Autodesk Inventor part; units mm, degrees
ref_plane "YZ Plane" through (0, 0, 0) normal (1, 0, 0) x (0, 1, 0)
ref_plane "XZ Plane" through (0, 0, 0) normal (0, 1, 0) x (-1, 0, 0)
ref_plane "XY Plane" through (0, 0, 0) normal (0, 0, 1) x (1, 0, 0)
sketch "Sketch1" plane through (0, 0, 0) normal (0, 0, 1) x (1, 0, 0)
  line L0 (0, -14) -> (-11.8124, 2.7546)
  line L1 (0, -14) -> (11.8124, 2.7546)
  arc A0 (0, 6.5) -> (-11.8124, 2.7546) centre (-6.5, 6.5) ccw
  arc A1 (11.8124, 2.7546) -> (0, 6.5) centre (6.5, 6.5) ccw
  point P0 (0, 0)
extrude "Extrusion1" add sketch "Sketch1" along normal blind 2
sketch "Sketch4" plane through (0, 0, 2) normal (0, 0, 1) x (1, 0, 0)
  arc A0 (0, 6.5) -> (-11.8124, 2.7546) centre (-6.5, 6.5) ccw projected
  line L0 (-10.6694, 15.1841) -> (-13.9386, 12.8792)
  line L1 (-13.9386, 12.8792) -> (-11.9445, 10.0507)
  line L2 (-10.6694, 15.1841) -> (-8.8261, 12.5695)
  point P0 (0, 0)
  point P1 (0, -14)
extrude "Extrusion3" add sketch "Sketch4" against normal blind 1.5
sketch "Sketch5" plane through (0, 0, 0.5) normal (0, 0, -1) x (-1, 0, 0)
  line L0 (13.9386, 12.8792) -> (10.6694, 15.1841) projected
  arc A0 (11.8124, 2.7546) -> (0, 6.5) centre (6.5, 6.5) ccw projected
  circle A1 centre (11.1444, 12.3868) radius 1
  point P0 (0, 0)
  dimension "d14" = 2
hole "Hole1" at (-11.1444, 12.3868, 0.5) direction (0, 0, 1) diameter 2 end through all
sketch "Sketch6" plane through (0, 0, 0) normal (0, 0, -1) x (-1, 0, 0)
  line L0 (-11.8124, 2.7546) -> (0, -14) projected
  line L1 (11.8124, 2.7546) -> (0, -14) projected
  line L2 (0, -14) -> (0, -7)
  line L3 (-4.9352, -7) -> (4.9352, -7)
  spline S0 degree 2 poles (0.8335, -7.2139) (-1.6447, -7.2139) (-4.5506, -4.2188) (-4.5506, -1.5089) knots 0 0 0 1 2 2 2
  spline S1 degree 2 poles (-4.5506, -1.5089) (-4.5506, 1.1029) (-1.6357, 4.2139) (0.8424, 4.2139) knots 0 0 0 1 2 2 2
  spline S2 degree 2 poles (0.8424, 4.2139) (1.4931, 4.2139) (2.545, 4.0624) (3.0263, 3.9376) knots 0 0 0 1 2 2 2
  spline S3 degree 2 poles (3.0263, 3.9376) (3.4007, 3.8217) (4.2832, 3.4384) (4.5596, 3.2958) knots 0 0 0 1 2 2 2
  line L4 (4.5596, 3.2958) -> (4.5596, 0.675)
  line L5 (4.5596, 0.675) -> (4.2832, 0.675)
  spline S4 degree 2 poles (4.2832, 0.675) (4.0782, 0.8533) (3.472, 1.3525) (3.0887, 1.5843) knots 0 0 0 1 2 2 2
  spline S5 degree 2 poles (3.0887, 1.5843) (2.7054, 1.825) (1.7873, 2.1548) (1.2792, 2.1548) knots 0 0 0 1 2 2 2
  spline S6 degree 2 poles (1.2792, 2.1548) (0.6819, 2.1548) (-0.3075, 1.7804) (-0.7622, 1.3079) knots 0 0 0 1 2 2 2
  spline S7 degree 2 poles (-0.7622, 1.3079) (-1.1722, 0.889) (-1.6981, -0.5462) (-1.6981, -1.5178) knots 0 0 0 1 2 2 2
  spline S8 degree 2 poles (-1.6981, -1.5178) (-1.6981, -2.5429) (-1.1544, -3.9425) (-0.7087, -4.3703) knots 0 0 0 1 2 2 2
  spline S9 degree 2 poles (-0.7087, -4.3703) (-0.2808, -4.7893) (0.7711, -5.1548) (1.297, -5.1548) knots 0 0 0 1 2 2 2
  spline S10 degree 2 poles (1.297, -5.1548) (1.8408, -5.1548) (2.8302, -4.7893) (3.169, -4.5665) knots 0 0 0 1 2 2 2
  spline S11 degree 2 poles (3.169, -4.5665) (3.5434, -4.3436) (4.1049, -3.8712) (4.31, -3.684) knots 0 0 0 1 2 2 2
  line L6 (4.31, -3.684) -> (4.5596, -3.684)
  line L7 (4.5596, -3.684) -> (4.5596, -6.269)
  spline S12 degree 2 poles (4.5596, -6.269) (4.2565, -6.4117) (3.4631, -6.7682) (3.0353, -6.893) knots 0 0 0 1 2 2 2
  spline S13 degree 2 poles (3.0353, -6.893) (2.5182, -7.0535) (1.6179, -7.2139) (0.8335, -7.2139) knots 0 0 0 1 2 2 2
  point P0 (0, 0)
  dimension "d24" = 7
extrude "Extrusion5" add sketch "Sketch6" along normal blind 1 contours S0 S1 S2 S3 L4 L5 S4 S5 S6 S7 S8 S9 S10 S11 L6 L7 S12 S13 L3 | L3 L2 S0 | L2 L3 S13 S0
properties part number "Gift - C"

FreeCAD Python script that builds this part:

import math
import FreeCAD as App
import Part
import Sketcher
from FreeCAD import Vector

doc = App.newDocument("Part")
body = doc.addObject("PartDesign::Body", "Body")

# Sketch on XY plane
sketch1 = doc.addObject("Sketcher::SketchObject", "Sketch")
body.addObject(sketch1)
sketch1.AttachmentSupport = (doc.XY_Plane, [""])
sketch1.MapMode = "FlatFace"
sketch1.addGeometry(Part.LineSegment(Vector(-12, 3, 0), Vector(0, -14, 0)), False)
sketch1.addGeometry(Part.LineSegment(Vector(0, -14, 0), Vector(12, 3, 0)), False)
sketch1.addGeometry(Part.ArcOfCircle(Part.Circle(Vector(6, 6, 0), Vector(0, 0, 1), 6), math.radians(-35), math.radians(180)), False)
sketch1.addGeometry(Part.ArcOfCircle(Part.Circle(Vector(-6, 6, 0), Vector(0, 0, 1), 6), math.radians(0), math.radians(215)), False)
sketch1.addConstraint(Sketcher.Constraint("Coincident", 0, 2, 1, 1))
sketch1.addConstraint(Sketcher.Constraint("Tangent", 1, 2, 2, 1))
sketch1.addConstraint(Sketcher.Constraint("Tangent", 2, 2, 3, 1))
sketch1.addConstraint(Sketcher.Constraint("Tangent", 3, 2, 0, 1))
sketch1.addConstraint(Sketcher.Constraint("Equal", 2, 3))
sketch1.addConstraint(Sketcher.Constraint("Symmetric", 2, 3, 3, 3, -2))
sketch1.addConstraint(Sketcher.Constraint("PointOnObject", 0, 2, -2))
sketch1.addConstraint(Sketcher.Constraint("Radius", 2, 6.5))
sketch1.addConstraint(Sketcher.Constraint("DistanceY", 0, 2, -1, 1, 14.0))
sketch1.addConstraint(Sketcher.Constraint("Distance", 0, 20.5))
pad1 = doc.addObject("PartDesign::Pad", "Pad")
body.addObject(pad1)
pad1.Profile = sketch1
pad1.Length = 2

# Sketch on XY plane
sketch2 = doc.addObject("Sketcher::SketchObject", "Sketch001")
body.addObject(sketch2)
sketch2.AttachmentSupport = (doc.XY_Plane, [""])
sketch2.MapMode = "FlatFace"
sketch2.AttachmentOffset = App.Placement(Vector(0, 0, 2), App.Rotation())
sketch2.addGeometry(Part.ArcOfCircle(Part.Circle(Vector(-6.5, 6.5, 0), Vector(0, 0, 1), 6.5), math.radians(111), math.radians(147)), False)
sketch2.addGeometry(Part.LineSegment(Vector(-8.8, 12.6, 0), Vector(-10.7, 15.2, 0)), False)
sketch2.addGeometry(Part.LineSegment(Vector(-10.7, 15.2, 0), Vector(-13.9, 12.9, 0)), False)
sketch2.addGeometry(Part.LineSegment(Vector(-13.9, 12.9, 0), Vector(-11.9, 10.1, 0)), False)
sketch2.addConstraint(Sketcher.Constraint("Coincident", 0, 1, 1, 1))
sketch2.addConstraint(Sketcher.Constraint("Coincident", 1, 2, 2, 1))
sketch2.addConstraint(Sketcher.Constraint("Coincident", 2, 2, 3, 1))
sketch2.addConstraint(Sketcher.Constraint("Coincident", 3, 2, 0, 2))
sketch2.addConstraint(Sketcher.Constraint("Perpendicular", 1, 2))
sketch2.addConstraint(Sketcher.Constraint("Perpendicular", 2, 3))
sketch2.addConstraint(Sketcher.Constraint("Radius", 0, 6.5))
sketch2.addConstraint(Sketcher.Constraint("Distance", 2, 4.0))
sketch2.addConstraint(Sketcher.Constraint("DistanceX", 0, 3, -1, 1, 6.5))
sketch2.addConstraint(Sketcher.Constraint("DistanceY", -1, 1, 0, 3, 6.5))
sketch2.addConstraint(Sketcher.Constraint("Distance", 1, 3.199))
sketch2.addConstraint(Sketcher.Constraint("DistanceX", 0, 1, -1, 1, 8.826))
sketch2.addConstraint(Sketcher.Constraint("DistanceY", -1, 1, 1, 2, 15.184))
pad2 = doc.addObject("PartDesign::Pad", "Pad001")
body.addObject(pad2)
pad2.Profile = sketch2
pad2.Length = 1.5
pad2.Reversed = True

# Sketch on XY plane
sketch3 = doc.addObject("Sketcher::SketchObject", "Sketch002")
body.addObject(sketch3)
sketch3.AttachmentSupport = (doc.XY_Plane, [""])
sketch3.MapMode = "FlatFace"
sketch3.AttachmentOffset = App.Placement(Vector(0, 0, 0.5), App.Rotation())
sketch3.addGeometry(Part.Circle(Vector(-11.1, 12.4, 0), Vector(0, 0, 1), 1), False)
sketch3.addConstraint(Sketcher.Constraint("Diameter", 0, 2.0))
sketch3.addConstraint(Sketcher.Constraint("DistanceX", 0, 3, -1, 1, 11.1444))
sketch3.addConstraint(Sketcher.Constraint("DistanceY", -1, 1, 0, 3, 12.3868))
doc.recompute()
hole = doc.addObject("PartDesign::Hole", "Hole")
body.addObject(hole)
hole.Profile = sketch3
hole.ThreadType = "None"
hole.Diameter = 2
hole.DepthType = "ThroughAll"
hole.Reversed = True

# Sketch on XY plane
sketch4 = doc.addObject("Sketcher::SketchObject", "Sketch003")
body.addObject(sketch4)
sketch4.AttachmentSupport = (doc.XY_Plane, [""])
sketch4.MapMode = "FlatFace"
sketch4.addGeometry(Part.BSplineCurve([Vector(0.893247, -7, 0), Vector(2.193818, -6.647927, 0), Vector(4.5506, -4.2188, 0), Vector(4.5506, -1.5089, 0)], [3, 1, 3], [0.377932923, 1, 2], False, 2, [1, 1, 1, 1], False), False)
sketch4.addGeometry(Part.BSplineCurve([Vector(0, -7.168319, 0), Vector(0.467846, -7.115159, 0), Vector(0.893247, -7, 0)], [3, 3], [0.174462449, 0.377932923], False, 2, [1, 1, 1], False), False)
sketch4.addGeometry(Part.BSplineCurve([Vector(-0.8335, -7.2139, 0), Vector(-0.401147, -7.2139, 0), Vector(0, -7.168319, 0)], [3, 3], [0, 0.174462449], False, 2, [1, 1, 1], False), False)
sketch4.addGeometry(Part.BSplineCurve([Vector(-2.664734, -7, 0), Vector(-2.35298, -7.082936, 0), Vector(-1.6179, -7.2139, 0), Vector(-0.8335, -7.2139, 0)], [3, 1, 3], [0.367032538, 1, 2], False, 2, [1, 1, 1, 1], False), False)
sketch4.addGeometry(Part.BSplineCurve([Vector(-3.0353, -6.893, 0), Vector(-2.845507, -6.951909, 0), Vector(-2.664734, -7, 0)], [3, 3], [0, 0.367032538], False, 2, [1, 1, 1], False), False)
sketch4.addGeometry(Part.BSplineCurve([Vector(-4.5596, -6.269, 0), Vector(-4.2565, -6.4117, 0), Vector(-3.4631, -6.7682, 0), Vector(-3.0353, -6.893, 0)], [3, 1, 3], [0, 1, 2], False, 2, [1, 1, 1, 1], False), False)
sketch4.addGeometry(Part.LineSegment(Vector(-4.5596, -6.269, 0), Vector(-4.5596, -3.684, 0)), False)
sketch4.addGeometry(Part.LineSegment(Vector(-4.5596, -3.684, 0), Vector(-4.31, -3.684, 0)), False)
sketch4.addGeometry(Part.BSplineCurve([Vector(-3.169, -4.5665, 0), Vector(-3.5434, -4.3436, 0), Vector(-4.1049, -3.8712, 0), Vector(-4.31, -3.684, 0)], [3, 1, 3], [0, 1, 2], False, 2, [1, 1, 1, 1], False), False)
sketch4.addGeometry(Part.BSplineCurve([Vector(-1.297, -5.1548, 0), Vector(-1.8408, -5.1548, 0), Vector(-2.8302, -4.7893, 0), Vector(-3.169, -4.5665, 0)], [3, 1, 3], [0, 1, 2], False, 2, [1, 1, 1, 1], False), False)
sketch4.addGeometry(Part.BSplineCurve([Vector(0.7087, -4.3703, 0), Vector(0.2808, -4.7893, 0), Vector(-0.7711, -5.1548, 0), Vector(-1.297, -5.1548, 0)], [3, 1, 3], [0, 1, 2], False, 2, [1, 1, 1, 1], False), False)
sketch4.addGeometry(Part.BSplineCurve([Vector(1.6981, -1.5178, 0), Vector(1.6981, -2.5429, 0), Vector(1.1544, -3.9425, 0), Vector(0.7087, -4.3703, 0)], [3, 1, 3], [0, 1, 2], False, 2, [1, 1, 1, 1], False), False)
sketch4.addGeometry(Part.BSplineCurve([Vector(0.7622, 1.3079, 0), Vector(1.1722, 0.889, 0), Vector(1.6981, -0.5462, 0), Vector(1.6981, -1.5178, 0)], [3, 1, 3], [0, 1, 2], False, 2, [1, 1, 1, 1], False), False)
sketch4.addGeometry(Part.BSplineCurve([Vector(-1.2792, 2.1548, 0), Vector(-0.6819, 2.1548, 0), Vector(0.3075, 1.7804, 0), Vector(0.7622, 1.3079, 0)], [3, 1, 3], [0, 1, 2], False, 2, [1, 1, 1, 1], False), False)
sketch4.addGeometry(Part.BSplineCurve([Vector(-3.0887, 1.5843, 0), Vector(-2.7054, 1.825, 0), Vector(-1.7873, 2.1548, 0), Vector(-1.2792, 2.1548, 0)], [3, 1, 3], [0, 1, 2], False, 2, [1, 1, 1, 1], False), False)
sketch4.addGeometry(Part.BSplineCurve([Vector(-4.2832, 0.675, 0), Vector(-4.0782, 0.8533, 0), Vector(-3.472, 1.3525, 0), Vector(-3.0887, 1.5843, 0)], [3, 1, 3], [0, 1, 2], False, 2, [1, 1, 1, 1], False), False)
sketch4.addGeometry(Part.LineSegment(Vector(-4.2832, 0.675, 0), Vector(-4.5596, 0.675, 0)), False)
sketch4.addGeometry(Part.LineSegment(Vector(-4.5596, 0.675, 0), Vector(-4.5596, 3.2958, 0)), False)
sketch4.addGeometry(Part.BSplineCurve([Vector(-3.0263, 3.9376, 0), Vector(-3.4007, 3.8217, 0), Vector(-4.2832, 3.4384, 0), Vector(-4.5596, 3.2958, 0)], [3, 1, 3], [0, 1, 2], False, 2, [1, 1, 1, 1], False), False)
sketch4.addGeometry(Part.BSplineCurve([Vector(-0.8424, 4.2139, 0), Vector(-1.4931, 4.2139, 0), Vector(-2.545, 4.0624, 0), Vector(-3.0263, 3.9376, 0)], [3, 1, 3], [0, 1, 2], False, 2, [1, 1, 1, 1], False), False)
sketch4.addGeometry(Part.BSplineCurve([Vector(4.5506, -1.5089, 0), Vector(4.5506, 1.1029, 0), Vector(1.6357, 4.2139, 0), Vector(-0.8424, 4.2139, 0)], [3, 1, 3], [0, 1, 2], False, 2, [1, 1, 1, 1], False), False)
sketch4.addConstraint(Sketcher.Constraint("Block", 0))
sketch4.addConstraint(Sketcher.Constraint("Block", 1))
sketch4.addConstraint(Sketcher.Constraint("Block", 2))
sketch4.addConstraint(Sketcher.Constraint("Block", 3))
sketch4.addConstraint(Sketcher.Constraint("Block", 4))
sketch4.addConstraint(Sketcher.Constraint("Block", 5))
sketch4.addConstraint(Sketcher.Constraint("Block", 8))
sketch4.addConstraint(Sketcher.Constraint("Block", 9))
sketch4.addConstraint(Sketcher.Constraint("Block", 10))
sketch4.addConstraint(Sketcher.Constraint("Block", 11))
sketch4.addConstraint(Sketcher.Constraint("Block", 12))
sketch4.addConstraint(Sketcher.Constraint("Block", 13))
sketch4.addConstraint(Sketcher.Constraint("Block", 14))
sketch4.addConstraint(Sketcher.Constraint("Block", 15))
sketch4.addConstraint(Sketcher.Constraint("Block", 18))
sketch4.addConstraint(Sketcher.Constraint("Block", 19))
sketch4.addConstraint(Sketcher.Constraint("Block", 20))
sketch4.addConstraint(Sketcher.Constraint("Coincident", 5, 1, 6, 1))
sketch4.addConstraint(Sketcher.Constraint("Coincident", 6, 2, 7, 1))
sketch4.addConstraint(Sketcher.Constraint("Coincident", 7, 2, 8, 2))
sketch4.addConstraint(Sketcher.Constraint("Coincident", 15, 1, 16, 1))
sketch4.addConstraint(Sketcher.Constraint("Coincident", 16, 2, 17, 1))
sketch4.addConstraint(Sketcher.Constraint("Coincident", 17, 2, 18, 2))
sketch4.addConstraint(Sketcher.Constraint("Vertical", 6))
sketch4.addConstraint(Sketcher.Constraint("Horizontal", 7))
sketch4.addConstraint(Sketcher.Constraint("Horizontal", 16))
sketch4.addConstraint(Sketcher.Constraint("Vertical", 17))
pad3 = doc.addObject("PartDesign::Pad", "Pad002")
body.addObject(pad3)
pad3.Profile = sketch4
pad3.Length = 1
pad3.Reversed = True

doc.recompute()
